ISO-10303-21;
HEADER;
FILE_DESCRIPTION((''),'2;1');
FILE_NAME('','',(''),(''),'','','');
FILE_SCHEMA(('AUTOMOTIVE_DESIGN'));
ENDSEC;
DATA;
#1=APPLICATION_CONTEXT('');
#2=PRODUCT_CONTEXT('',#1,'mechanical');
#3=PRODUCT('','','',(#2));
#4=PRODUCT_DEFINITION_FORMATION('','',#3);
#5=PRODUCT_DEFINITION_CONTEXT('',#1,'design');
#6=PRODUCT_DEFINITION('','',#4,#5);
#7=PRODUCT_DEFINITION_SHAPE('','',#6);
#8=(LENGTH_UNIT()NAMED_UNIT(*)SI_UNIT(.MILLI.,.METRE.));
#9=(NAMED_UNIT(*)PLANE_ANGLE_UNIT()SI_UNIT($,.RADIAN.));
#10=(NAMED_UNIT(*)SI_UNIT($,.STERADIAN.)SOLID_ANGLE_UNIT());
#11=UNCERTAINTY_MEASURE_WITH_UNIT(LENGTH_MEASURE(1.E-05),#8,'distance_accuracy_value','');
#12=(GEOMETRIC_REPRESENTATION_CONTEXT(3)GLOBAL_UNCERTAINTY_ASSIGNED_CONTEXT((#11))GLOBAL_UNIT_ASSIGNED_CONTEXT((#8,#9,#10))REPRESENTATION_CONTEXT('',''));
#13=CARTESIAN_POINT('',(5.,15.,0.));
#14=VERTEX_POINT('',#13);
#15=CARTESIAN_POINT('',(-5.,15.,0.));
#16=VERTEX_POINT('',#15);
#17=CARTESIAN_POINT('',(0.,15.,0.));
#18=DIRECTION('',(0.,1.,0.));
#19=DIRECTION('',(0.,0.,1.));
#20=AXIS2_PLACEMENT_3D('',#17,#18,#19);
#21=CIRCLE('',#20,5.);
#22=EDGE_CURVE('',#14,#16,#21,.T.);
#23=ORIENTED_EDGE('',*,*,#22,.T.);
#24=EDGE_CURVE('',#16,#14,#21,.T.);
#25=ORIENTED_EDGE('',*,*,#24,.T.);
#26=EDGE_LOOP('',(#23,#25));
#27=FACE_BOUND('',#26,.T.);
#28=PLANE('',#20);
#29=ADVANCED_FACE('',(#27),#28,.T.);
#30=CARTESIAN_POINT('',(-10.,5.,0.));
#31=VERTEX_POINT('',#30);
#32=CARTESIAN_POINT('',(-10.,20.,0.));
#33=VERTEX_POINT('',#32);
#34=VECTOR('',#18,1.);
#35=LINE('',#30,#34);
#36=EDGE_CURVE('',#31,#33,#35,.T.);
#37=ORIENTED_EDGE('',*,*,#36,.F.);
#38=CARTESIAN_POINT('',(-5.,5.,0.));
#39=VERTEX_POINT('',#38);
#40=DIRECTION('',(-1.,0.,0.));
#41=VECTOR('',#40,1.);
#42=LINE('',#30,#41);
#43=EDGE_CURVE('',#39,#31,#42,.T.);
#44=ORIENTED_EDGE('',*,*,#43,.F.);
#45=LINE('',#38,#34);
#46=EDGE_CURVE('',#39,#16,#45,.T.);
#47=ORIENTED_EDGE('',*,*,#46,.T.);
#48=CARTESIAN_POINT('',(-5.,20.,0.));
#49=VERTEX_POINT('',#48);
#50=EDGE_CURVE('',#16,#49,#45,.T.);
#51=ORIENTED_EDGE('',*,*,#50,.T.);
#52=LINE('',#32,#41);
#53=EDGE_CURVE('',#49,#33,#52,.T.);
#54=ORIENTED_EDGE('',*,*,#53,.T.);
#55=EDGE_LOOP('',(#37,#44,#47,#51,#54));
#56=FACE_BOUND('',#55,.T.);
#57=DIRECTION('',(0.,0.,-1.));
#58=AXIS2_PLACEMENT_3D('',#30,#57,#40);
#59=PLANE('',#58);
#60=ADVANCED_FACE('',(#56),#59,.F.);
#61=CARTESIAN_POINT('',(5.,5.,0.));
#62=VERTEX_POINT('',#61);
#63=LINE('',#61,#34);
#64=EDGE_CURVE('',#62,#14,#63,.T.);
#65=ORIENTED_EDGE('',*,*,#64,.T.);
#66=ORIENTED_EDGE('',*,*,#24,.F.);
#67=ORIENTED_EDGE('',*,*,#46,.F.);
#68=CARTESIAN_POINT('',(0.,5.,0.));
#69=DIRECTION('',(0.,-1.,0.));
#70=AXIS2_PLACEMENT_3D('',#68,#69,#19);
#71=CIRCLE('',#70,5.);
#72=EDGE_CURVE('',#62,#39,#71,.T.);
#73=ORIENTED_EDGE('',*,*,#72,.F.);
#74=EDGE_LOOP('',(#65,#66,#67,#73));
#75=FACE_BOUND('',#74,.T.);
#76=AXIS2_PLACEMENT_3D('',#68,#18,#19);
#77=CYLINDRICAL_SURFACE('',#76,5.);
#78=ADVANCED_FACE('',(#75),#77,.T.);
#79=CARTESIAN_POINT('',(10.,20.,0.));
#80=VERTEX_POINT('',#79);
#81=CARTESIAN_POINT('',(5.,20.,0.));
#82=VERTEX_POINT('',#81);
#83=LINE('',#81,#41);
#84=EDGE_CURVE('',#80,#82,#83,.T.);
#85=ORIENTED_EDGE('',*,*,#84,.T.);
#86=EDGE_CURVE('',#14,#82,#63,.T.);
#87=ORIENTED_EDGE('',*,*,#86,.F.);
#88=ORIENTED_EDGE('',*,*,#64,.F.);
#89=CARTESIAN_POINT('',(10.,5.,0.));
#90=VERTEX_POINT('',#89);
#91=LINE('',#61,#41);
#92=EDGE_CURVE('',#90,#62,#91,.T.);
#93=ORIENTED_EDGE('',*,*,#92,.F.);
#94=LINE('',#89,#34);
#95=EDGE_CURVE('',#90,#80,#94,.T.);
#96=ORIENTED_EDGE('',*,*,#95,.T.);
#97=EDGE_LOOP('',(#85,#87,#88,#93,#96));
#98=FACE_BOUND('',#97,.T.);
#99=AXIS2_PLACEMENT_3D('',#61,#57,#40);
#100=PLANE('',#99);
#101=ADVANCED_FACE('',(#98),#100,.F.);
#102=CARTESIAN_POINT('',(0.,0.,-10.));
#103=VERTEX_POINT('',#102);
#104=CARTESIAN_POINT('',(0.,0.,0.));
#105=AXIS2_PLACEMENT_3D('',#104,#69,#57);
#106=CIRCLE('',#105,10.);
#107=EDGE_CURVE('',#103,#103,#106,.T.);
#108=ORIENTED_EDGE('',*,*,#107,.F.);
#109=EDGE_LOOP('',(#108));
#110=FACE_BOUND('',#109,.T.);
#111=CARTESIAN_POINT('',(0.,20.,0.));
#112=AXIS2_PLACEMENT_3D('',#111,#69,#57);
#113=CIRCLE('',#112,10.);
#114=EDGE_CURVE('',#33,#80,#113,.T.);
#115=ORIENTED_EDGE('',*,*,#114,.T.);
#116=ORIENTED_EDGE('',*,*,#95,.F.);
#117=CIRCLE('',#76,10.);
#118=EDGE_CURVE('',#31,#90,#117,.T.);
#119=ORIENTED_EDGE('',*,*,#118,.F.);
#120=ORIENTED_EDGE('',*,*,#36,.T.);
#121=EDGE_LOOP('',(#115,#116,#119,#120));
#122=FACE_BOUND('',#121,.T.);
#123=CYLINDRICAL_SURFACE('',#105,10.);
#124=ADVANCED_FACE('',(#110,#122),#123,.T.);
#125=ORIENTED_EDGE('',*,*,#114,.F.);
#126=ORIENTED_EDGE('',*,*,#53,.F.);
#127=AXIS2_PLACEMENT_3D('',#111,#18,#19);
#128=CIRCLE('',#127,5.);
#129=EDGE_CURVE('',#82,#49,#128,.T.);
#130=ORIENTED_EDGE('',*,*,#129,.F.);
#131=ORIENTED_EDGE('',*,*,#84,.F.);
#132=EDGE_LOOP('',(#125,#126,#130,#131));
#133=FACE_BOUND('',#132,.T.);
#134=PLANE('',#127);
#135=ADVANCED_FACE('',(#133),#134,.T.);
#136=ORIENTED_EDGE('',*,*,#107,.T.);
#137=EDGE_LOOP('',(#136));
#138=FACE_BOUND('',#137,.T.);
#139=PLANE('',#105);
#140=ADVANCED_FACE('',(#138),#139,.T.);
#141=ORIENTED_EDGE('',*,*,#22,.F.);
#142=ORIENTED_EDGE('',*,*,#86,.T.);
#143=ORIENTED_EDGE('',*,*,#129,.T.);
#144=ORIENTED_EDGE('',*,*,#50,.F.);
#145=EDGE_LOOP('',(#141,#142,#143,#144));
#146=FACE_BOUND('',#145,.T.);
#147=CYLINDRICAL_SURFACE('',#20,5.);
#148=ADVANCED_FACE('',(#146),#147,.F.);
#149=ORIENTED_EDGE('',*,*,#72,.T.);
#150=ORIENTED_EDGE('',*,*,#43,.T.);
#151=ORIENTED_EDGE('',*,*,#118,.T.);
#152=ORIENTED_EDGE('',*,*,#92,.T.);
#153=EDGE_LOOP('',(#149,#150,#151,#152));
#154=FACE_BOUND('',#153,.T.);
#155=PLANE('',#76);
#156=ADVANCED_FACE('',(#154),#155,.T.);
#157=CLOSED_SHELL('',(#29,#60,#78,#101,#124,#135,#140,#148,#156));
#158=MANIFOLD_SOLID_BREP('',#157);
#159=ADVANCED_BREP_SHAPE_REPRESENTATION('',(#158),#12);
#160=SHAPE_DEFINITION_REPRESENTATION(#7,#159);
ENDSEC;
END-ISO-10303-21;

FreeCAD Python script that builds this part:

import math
import FreeCAD as App
import Part
import Sketcher
from FreeCAD import Vector

doc = App.newDocument("Part")
params = doc.addObject("Spreadsheet::Sheet", "Params")
for row, (alias, value) in enumerate([
    ("sketch1_width", "10 mm"),
    ("sketch1_height", "20 mm"),
    ("revolution_angle", "360 deg"),
    ("sketch2_diameter", "10 mm"),
    ("pocket1_length", "5 mm"),
    ("sketch3_radius", "10 mm"),
    ("sketch3_radius2", "5 mm"),
    ("pocket2_length", "15 mm"),
], start=1):
    params.set(f"A{row}", alias)
    params.set(f"B{row}", "=" + value)
    params.setAlias(f"B{row}", alias)

body = doc.addObject("PartDesign::Body", "Body")

sketch1 = body.newObject("Sketcher::SketchObject", "Sketch")
sketch1.AttachmentSupport = (doc.getObject("XY_Plane"), [""])
sketch1.MapMode = "FlatFace"
sketch1.addGeometry(Part.LineSegment(Vector(0, 20, 0), Vector(0, 0, 0)), False)
sketch1.addGeometry(Part.LineSegment(Vector(0, 0, 0), Vector(10, 0, 0)), False)
sketch1.addGeometry(Part.LineSegment(Vector(10, 0, 0), Vector(10, 20, 0)), False)
sketch1.addGeometry(Part.LineSegment(Vector(10, 20, 0), Vector(0, 20, 0)), False)
sketch1.addConstraint(Sketcher.Constraint("Coincident", 0, 2, 1, 1))
sketch1.addConstraint(Sketcher.Constraint("Coincident", 1, 2, 2, 1))
sketch1.addConstraint(Sketcher.Constraint("Coincident", 2, 2, 3, 1))
sketch1.addConstraint(Sketcher.Constraint("Coincident", 3, 2, 0, 1))
sketch1.addConstraint(Sketcher.Constraint("Vertical", 0))
sketch1.addConstraint(Sketcher.Constraint("Horizontal", 1))
sketch1.addConstraint(Sketcher.Constraint("Vertical", 2))
sketch1.addConstraint(Sketcher.Constraint("Horizontal", 3))
sketch1.addConstraint(Sketcher.Constraint("Coincident", 0, 2, -1, 1))
sketch1.addConstraint(Sketcher.Constraint("DistanceX", 1, 1, 1, 2, 10.0))
sketch1.addConstraint(Sketcher.Constraint("DistanceY", 0, 2, 0, 1, 20.0))
sketch1.setExpression("Constraints[9]", "Params.sketch1_width")
sketch1.setExpression("Constraints[10]", "Params.sketch1_height")
revolution = body.newObject("PartDesign::Revolution", "Revolution")
revolution.Profile = sketch1
revolution.ReferenceAxis = (sketch1, ["V_Axis"])
revolution.setExpression("Angle", "Params.revolution_angle")

sketch2 = body.newObject("Sketcher::SketchObject", "Sketch001")
sketch2.AttachmentSupport = (doc.getObject("XZ_Plane"), [""])
sketch2.MapMode = "FlatFace"
sketch2.AttachmentOffset = App.Placement(Vector(0, 0, -20), App.Rotation())
sketch2.addGeometry(Part.Circle(Vector(0, 0, 0), Vector(0, 0, 1), 5), False)
sketch2.addConstraint(Sketcher.Constraint("Coincident", 0, 3, -1, 1))
sketch2.addConstraint(Sketcher.Constraint("Diameter", 0, 10.0))
sketch2.setExpression("Constraints[1]", "Params.sketch2_diameter")
pocket1 = body.newObject("PartDesign::Pocket", "Pocket")
pocket1.Profile = sketch2
pocket1.setExpression("Length", "Params.pocket1_length")
pocket1.Reversed = True

sketch3 = body.newObject("Sketcher::SketchObject", "Sketch002")
sketch3.AttachmentSupport = (doc.getObject("XZ_Plane"), [""])
sketch3.MapMode = "FlatFace"
sketch3.AttachmentOffset = App.Placement(Vector(0, 0, -20), App.Rotation())
sketch3.addGeometry(Part.LineSegment(Vector(-5, 0, 0), Vector(-10, 0, 0)), False)
sketch3.addGeometry(Part.ArcOfCircle(Part.Circle(Vector(0, 0, 0), Vector(0, 0, 1), 10), math.radians(0), math.radians(180)), False)
sketch3.addGeometry(Part.LineSegment(Vector(10, 0, 0), Vector(5, 0, 0)), False)
sketch3.addGeometry(Part.ArcOfCircle(Part.Circle(Vector(0, 0, 0), Vector(0, 0, 1), 5), math.radians(0), math.radians(180)), False)
sketch3.addConstraint(Sketcher.Constraint("Coincident", 0, 2, 1, 2))
sketch3.addConstraint(Sketcher.Constraint("Coincident", 1, 1, 2, 1))
sketch3.addConstraint(Sketcher.Constraint("Coincident", 2, 2, 3, 1))
sketch3.addConstraint(Sketcher.Constraint("Coincident", 3, 2, 0, 1))
sketch3.addConstraint(Sketcher.Constraint("Horizontal", 0))
sketch3.addConstraint(Sketcher.Constraint("Horizontal", 2))
sketch3.addConstraint(Sketcher.Constraint("Coincident", 1, 3, -1, 1))
sketch3.addConstraint(Sketcher.Constraint("Coincident", 3, 3, -1, 1))
sketch3.addConstraint(Sketcher.Constraint("PointOnObject", 0, 2, -1))
sketch3.addConstraint(Sketcher.Constraint("PointOnObject", 1, 1, -1))
sketch3.addConstraint(Sketcher.Constraint("Radius", 1, 10.0))
sketch3.addConstraint(Sketcher.Constraint("Radius", 3, 5.0))
sketch3.setExpression("Constraints[10]", "Params.sketch3_radius")
sketch3.setExpression("Constraints[11]", "Params.sketch3_radius2")
pocket2 = body.newObject("PartDesign::Pocket", "Pocket001")
pocket2.Profile = sketch3
pocket2.setExpression("Length", "Params.pocket2_length")
pocket2.Reversed = True

doc.recompute()
